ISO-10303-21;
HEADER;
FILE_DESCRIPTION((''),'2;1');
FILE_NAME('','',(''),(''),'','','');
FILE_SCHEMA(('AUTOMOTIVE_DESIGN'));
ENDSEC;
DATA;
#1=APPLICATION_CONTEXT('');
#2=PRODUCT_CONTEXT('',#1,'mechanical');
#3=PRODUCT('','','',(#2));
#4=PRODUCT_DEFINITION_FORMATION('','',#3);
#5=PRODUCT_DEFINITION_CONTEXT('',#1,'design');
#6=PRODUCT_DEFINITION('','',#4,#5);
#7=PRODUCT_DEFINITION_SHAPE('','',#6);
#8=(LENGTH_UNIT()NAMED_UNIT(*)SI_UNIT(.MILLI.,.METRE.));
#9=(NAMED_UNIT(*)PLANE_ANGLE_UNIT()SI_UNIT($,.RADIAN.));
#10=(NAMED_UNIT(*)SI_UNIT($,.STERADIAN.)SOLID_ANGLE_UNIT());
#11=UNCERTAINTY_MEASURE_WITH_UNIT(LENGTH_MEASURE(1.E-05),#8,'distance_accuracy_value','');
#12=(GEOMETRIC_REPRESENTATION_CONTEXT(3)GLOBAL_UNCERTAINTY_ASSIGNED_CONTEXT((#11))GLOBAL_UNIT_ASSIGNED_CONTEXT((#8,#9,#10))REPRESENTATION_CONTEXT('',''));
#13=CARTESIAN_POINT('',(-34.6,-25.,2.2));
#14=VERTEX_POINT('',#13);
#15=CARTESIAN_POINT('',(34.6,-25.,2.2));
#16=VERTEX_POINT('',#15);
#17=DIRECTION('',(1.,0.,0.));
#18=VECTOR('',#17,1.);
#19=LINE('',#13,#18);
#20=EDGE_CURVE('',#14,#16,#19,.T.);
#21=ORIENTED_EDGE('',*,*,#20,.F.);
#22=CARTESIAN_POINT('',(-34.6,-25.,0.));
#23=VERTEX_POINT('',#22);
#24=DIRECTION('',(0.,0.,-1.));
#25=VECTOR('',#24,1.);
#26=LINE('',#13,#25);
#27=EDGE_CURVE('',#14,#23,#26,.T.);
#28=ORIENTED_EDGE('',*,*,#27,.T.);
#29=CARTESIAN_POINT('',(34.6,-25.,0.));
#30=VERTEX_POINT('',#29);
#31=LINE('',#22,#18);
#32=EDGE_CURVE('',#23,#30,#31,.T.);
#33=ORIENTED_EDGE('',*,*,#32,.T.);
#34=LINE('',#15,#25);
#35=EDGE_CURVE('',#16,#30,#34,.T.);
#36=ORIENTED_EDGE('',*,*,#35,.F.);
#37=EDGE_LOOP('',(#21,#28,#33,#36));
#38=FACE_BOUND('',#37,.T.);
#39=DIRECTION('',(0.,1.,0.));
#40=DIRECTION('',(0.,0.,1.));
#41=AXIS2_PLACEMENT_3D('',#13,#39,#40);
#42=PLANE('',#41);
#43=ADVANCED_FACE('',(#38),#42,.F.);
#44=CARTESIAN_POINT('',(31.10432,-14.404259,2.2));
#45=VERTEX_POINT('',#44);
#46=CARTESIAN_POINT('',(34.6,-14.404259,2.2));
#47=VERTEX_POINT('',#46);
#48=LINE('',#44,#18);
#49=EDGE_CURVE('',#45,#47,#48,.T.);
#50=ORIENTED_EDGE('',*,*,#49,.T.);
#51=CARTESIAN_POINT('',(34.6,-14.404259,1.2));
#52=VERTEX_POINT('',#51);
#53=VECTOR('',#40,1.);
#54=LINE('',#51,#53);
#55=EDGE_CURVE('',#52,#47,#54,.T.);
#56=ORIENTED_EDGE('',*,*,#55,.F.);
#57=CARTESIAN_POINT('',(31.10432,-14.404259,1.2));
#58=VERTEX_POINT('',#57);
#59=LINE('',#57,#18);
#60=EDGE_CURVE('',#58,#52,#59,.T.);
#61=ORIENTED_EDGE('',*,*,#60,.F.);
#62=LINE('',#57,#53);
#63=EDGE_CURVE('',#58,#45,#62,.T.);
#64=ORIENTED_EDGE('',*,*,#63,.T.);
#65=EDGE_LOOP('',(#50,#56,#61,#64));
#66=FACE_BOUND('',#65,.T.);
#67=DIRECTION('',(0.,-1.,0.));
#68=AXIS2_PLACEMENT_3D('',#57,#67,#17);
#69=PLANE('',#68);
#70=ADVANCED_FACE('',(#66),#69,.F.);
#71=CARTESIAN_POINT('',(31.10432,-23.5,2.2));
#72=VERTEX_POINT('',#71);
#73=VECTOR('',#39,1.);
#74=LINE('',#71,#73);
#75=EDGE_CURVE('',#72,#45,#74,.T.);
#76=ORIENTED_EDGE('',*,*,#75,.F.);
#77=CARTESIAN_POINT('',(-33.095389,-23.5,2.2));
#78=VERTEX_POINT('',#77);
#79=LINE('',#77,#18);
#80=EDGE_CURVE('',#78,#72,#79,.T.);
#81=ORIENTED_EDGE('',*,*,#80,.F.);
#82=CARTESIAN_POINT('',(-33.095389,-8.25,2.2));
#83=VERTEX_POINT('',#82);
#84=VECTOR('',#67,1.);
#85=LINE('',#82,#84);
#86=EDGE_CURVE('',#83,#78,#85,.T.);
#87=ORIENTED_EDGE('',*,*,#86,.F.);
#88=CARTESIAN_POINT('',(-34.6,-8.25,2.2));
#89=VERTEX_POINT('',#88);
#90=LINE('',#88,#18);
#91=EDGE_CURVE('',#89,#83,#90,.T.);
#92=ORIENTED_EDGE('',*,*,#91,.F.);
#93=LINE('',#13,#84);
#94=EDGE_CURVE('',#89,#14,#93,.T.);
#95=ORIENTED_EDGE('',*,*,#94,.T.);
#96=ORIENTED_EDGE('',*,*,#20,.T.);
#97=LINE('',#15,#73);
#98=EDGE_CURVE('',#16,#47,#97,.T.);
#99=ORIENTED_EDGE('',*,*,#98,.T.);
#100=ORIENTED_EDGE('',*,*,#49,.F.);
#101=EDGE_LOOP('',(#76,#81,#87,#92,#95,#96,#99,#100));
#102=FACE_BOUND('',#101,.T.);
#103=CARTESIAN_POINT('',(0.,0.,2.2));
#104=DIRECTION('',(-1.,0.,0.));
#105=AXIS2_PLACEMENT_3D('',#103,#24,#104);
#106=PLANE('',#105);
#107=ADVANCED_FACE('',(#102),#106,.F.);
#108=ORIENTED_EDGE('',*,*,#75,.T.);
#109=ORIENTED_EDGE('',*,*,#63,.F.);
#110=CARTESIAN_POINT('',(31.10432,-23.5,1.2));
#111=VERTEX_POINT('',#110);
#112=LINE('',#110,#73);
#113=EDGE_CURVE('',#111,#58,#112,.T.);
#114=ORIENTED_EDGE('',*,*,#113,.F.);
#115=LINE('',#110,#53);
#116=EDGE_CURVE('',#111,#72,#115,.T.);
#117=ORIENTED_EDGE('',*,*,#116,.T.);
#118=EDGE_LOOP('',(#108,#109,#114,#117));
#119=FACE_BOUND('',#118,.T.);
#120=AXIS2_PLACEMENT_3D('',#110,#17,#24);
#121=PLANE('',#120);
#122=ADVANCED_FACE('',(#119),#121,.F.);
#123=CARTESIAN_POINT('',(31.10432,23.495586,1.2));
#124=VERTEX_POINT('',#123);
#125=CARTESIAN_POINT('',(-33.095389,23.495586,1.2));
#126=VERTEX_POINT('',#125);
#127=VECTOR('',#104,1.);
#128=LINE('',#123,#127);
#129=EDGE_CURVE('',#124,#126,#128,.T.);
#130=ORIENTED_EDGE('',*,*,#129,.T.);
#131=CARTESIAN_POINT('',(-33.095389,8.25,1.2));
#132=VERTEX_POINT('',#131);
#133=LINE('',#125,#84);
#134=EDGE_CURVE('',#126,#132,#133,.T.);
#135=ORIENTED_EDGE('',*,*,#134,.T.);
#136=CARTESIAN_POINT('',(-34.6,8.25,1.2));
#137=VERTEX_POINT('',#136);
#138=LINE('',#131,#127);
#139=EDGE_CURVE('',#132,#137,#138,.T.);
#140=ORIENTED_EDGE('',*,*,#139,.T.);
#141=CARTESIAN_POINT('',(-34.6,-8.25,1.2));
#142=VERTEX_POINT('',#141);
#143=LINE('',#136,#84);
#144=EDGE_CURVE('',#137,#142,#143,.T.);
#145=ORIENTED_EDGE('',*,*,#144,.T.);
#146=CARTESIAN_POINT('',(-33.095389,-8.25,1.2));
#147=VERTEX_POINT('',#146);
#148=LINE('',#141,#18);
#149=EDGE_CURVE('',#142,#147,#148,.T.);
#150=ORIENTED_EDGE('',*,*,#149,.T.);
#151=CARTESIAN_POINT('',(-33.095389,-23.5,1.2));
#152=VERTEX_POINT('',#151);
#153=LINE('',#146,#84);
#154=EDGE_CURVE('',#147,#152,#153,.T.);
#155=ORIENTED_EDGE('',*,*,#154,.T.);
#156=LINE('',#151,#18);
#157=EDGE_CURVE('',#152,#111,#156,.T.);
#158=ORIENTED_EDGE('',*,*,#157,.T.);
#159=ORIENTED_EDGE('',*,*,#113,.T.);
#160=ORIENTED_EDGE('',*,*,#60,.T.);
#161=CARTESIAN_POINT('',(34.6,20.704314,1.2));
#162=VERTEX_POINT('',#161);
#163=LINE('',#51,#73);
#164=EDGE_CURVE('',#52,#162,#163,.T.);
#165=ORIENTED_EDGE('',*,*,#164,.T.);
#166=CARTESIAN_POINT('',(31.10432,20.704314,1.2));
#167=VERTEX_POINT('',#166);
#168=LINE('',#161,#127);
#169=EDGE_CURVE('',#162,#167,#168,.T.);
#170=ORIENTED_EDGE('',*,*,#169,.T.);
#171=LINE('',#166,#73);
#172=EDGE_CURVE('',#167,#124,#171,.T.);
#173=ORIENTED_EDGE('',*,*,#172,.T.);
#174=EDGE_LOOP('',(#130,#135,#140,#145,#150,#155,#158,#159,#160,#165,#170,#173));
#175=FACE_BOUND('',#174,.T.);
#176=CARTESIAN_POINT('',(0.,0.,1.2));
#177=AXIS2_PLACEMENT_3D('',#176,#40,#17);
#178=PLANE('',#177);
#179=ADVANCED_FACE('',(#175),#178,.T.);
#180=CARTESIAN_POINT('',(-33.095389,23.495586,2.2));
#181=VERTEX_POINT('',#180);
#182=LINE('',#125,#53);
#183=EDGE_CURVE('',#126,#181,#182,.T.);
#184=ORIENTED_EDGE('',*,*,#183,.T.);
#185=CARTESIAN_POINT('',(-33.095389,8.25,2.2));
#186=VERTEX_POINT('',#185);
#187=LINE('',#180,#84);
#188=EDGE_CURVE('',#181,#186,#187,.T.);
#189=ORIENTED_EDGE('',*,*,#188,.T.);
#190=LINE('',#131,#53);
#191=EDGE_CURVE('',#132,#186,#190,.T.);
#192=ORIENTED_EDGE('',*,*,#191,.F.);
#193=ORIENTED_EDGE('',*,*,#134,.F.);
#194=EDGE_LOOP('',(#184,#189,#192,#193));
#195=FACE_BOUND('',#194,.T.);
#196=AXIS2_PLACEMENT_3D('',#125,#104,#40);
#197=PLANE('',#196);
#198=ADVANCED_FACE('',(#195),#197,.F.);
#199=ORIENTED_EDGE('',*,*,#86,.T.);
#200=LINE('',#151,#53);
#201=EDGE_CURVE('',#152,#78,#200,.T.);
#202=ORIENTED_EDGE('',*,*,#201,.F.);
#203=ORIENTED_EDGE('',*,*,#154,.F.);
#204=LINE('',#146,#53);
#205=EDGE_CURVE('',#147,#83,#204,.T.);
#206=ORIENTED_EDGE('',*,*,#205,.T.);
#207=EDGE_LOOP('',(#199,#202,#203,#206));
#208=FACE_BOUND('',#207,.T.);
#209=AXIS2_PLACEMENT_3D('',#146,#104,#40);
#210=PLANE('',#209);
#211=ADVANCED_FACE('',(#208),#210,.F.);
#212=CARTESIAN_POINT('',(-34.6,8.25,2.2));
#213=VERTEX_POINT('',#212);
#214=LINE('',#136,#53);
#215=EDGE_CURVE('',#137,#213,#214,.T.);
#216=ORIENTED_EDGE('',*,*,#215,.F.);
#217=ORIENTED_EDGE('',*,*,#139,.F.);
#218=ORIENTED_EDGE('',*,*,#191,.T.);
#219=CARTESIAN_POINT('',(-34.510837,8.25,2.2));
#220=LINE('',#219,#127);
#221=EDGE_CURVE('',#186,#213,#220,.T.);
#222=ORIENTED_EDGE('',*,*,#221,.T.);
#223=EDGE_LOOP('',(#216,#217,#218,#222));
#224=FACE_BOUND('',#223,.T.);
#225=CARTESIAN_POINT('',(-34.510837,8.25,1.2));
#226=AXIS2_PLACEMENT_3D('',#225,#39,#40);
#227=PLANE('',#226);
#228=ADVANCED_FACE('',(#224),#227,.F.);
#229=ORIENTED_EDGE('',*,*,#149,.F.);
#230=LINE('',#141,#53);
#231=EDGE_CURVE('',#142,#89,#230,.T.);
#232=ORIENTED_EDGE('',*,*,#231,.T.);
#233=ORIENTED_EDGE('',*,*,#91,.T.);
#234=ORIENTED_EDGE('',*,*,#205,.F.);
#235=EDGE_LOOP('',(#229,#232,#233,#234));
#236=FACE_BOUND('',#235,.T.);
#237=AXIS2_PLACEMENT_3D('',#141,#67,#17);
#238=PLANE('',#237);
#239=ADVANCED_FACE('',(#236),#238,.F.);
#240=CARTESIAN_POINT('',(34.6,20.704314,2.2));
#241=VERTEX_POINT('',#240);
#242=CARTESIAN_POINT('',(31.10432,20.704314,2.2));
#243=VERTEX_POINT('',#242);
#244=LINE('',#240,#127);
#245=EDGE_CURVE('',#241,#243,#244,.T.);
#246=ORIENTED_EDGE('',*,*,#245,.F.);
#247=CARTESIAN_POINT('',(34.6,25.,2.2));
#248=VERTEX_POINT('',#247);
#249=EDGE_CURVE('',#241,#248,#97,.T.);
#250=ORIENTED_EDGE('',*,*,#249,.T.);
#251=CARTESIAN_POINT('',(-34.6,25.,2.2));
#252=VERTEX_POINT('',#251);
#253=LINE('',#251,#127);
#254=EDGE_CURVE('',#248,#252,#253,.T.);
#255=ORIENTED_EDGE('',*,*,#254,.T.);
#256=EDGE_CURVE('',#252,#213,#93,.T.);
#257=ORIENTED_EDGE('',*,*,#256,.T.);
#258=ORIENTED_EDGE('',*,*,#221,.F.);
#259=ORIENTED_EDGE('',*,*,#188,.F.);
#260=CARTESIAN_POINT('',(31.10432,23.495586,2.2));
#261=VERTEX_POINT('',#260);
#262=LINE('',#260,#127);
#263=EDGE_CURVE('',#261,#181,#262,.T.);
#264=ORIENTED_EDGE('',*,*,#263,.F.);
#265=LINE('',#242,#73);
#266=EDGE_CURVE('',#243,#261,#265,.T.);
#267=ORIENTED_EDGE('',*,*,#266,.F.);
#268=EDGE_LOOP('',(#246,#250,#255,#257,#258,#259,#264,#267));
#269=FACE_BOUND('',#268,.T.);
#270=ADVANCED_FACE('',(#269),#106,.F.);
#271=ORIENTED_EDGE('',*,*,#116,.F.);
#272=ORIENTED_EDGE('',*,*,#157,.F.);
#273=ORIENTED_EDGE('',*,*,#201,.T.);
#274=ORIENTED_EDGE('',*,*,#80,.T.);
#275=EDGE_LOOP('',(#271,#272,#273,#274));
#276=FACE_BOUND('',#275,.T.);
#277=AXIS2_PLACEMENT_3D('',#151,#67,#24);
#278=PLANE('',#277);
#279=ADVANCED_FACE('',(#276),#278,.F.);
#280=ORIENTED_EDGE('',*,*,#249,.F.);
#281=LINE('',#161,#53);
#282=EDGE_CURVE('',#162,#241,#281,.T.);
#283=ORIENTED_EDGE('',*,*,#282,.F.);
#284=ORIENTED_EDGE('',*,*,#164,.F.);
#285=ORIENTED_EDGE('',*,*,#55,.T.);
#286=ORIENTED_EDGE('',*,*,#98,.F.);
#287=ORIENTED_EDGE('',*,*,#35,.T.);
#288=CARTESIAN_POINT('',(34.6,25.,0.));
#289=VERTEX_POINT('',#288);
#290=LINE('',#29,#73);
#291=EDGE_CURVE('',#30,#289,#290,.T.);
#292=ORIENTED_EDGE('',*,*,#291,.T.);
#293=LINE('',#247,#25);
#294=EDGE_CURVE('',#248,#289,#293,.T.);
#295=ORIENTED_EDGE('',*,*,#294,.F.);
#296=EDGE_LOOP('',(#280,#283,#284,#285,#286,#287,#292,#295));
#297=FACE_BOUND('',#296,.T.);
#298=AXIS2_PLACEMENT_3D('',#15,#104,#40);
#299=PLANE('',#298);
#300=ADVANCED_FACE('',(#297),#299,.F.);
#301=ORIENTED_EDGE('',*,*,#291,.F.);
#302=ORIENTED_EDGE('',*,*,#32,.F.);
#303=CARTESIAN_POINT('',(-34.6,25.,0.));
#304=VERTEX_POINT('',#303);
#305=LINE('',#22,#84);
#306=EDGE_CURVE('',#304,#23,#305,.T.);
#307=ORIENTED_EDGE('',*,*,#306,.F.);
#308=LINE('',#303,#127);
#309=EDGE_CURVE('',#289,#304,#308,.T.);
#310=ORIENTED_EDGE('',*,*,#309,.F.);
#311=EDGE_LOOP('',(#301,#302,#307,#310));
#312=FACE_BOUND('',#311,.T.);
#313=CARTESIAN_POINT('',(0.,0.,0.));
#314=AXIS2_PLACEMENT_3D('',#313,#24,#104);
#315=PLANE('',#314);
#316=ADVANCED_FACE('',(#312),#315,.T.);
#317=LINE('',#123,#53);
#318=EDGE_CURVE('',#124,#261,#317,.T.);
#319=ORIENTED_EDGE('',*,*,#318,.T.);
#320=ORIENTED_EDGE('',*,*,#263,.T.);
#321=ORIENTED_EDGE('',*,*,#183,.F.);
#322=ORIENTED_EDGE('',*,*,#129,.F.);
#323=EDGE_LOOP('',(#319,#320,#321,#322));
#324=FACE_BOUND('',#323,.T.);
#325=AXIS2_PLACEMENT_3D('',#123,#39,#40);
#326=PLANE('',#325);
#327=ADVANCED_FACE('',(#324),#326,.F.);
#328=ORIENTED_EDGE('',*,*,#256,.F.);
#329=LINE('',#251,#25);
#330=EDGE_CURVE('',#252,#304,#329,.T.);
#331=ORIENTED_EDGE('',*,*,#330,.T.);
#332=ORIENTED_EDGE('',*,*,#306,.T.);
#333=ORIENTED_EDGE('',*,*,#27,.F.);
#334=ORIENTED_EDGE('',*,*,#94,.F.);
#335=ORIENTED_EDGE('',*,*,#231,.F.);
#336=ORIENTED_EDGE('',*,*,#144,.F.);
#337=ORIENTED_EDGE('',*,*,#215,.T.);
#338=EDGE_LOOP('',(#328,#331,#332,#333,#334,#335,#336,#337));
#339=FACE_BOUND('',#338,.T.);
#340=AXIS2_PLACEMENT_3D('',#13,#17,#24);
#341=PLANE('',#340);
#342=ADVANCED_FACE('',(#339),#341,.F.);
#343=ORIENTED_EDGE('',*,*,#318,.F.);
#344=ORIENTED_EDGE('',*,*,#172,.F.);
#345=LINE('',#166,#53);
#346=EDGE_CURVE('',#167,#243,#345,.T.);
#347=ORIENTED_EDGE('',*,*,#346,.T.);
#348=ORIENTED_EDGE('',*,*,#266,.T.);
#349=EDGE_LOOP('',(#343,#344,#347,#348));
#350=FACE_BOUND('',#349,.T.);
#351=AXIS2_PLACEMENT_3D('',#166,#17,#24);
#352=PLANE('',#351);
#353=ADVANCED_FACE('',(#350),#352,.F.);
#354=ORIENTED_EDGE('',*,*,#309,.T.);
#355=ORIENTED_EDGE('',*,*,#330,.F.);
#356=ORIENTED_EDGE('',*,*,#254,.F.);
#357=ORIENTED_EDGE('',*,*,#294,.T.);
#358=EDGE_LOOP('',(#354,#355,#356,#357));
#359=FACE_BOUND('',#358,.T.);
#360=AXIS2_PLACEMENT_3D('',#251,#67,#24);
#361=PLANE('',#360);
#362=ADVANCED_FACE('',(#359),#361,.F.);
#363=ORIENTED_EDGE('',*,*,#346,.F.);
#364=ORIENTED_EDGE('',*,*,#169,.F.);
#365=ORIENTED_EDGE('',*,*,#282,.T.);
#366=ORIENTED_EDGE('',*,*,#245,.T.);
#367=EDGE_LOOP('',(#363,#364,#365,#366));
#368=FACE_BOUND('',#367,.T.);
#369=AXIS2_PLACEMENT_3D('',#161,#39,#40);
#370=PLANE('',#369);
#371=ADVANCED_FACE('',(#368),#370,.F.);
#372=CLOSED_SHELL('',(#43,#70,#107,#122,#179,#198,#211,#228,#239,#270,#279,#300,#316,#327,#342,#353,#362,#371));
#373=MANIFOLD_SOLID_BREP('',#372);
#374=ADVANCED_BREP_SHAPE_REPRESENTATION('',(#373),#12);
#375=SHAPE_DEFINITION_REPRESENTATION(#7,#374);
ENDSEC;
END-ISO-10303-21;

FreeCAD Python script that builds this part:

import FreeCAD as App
import Part
import Sketcher


def add_polygon(sketch, points):
    """Adds a closed chain of lines whose ends are joined by coincident constraints."""
    first, n = sketch.GeometryCount, len(points)
    for a, b in zip(points, points[1:] + points[:1]):
        sketch.addGeometry(Part.LineSegment(App.Vector(*a, 0), App.Vector(*b, 0)), False)
    for i in range(n):
        sketch.addConstraint(Sketcher.Constraint("Coincident", first + i, 2, first + (i + 1) % n, 1))

doc = App.newDocument("Part")
body = doc.addObject("PartDesign::Body", "Body")

# Sketch on XY plane
sketch1 = doc.addObject("Sketcher::SketchObject", "Sketch")
body.addObject(sketch1)
sketch1.AttachmentSupport = (doc.XY_Plane, [""])
sketch1.MapMode = "FlatFace"
add_polygon(sketch1, [(-34.6, 25), (-34.6, -25), (34.6, -25), (34.6, 25)])  # lines 0-3
sketch1.addConstraint([
    Sketcher.Constraint("Vertical", 0),
    Sketcher.Constraint("Horizontal", 1),
    Sketcher.Constraint("Vertical", 2),
    Sketcher.Constraint("Horizontal", 3),
    Sketcher.Constraint("Symmetric", 0, 2, 2, 2, -1, 1),
    Sketcher.Constraint("DistanceY", 0, 2, 0, 1, 50.0),
    Sketcher.Constraint("DistanceX", 1, 1, 1, 2, 69.2),
])
pad1 = doc.addObject("PartDesign::Pad", "Pad")
body.addObject(pad1)
pad1.Profile = sketch1
pad1.Length = 2.2

# Sketch on XY plane
sketch2 = doc.addObject("Sketcher::SketchObject", "Sketch001")
body.addObject(sketch2)
sketch2.AttachmentSupport = (doc.XY_Plane, [""])
sketch2.MapMode = "FlatFace"
sketch2.AttachmentOffset = App.Placement(App.Vector(0, 0, 2.2), App.Rotation())
add_polygon(sketch2, [(34.6, 20.704314), (31.10432, 20.704314), (31.10432, 23.495586), (-33.095389, 23.495586), (-33.095389, 8.25), (-34.6, 8.25), (-34.6, -8.25), (-33.095389, -8.25), (-33.095389, -23.5), (31.10432, -23.5), (31.10432, -14.404259), (34.6, -14.404259)])  # lines 0-11
sketch2.addConstraint([
    Sketcher.Constraint("Horizontal", 0),
    Sketcher.Constraint("Vertical", 1),
    Sketcher.Constraint("Horizontal", 2),
    Sketcher.Constraint("Vertical", 3),
    Sketcher.Constraint("Horizontal", 4),
    Sketcher.Constraint("Vertical", 5),
    Sketcher.Constraint("Horizontal", 6),
    Sketcher.Constraint("Vertical", 7),
    Sketcher.Constraint("Horizontal", 8),
    Sketcher.Constraint("Vertical", 9),
    Sketcher.Constraint("Horizontal", 10),
    Sketcher.Constraint("Vertical", 11),
    Sketcher.Constraint("Symmetric", 3, 2, 6, 2, -1),
    Sketcher.Constraint("Vertical", 1, 2, 8, 2),
    Sketcher.Constraint("DistanceY", 5, 2, 5, 1, 16.5),
    Sketcher.Constraint("DistanceY", 7, 2, 7, 1, 15.25),
    Sketcher.Constraint("DistanceX", 4, 2, -1, 1, 34.6),
    Sketcher.Constraint("DistanceX", -1, 1, 10, 2, 34.6),
    Sketcher.Constraint("DistanceX", 0, 2, 0, 1, 3.49568),
    Sketcher.Constraint("DistanceX", 2, 2, 2, 1, 64.199709),
    Sketcher.Constraint("DistanceY", 1, 1, 1, 2, 2.791272),
    Sketcher.Constraint("DistanceY", 9, 1, 9, 2, 9.095741),
    Sketcher.Constraint("DistanceY", 3, 2, 3, 1, 15.245586),
])
pocket1 = doc.addObject("PartDesign::Pocket", "Pocket")
body.addObject(pocket1)
pocket1.Profile = sketch2
pocket1.Length = 1

doc.recompute()
